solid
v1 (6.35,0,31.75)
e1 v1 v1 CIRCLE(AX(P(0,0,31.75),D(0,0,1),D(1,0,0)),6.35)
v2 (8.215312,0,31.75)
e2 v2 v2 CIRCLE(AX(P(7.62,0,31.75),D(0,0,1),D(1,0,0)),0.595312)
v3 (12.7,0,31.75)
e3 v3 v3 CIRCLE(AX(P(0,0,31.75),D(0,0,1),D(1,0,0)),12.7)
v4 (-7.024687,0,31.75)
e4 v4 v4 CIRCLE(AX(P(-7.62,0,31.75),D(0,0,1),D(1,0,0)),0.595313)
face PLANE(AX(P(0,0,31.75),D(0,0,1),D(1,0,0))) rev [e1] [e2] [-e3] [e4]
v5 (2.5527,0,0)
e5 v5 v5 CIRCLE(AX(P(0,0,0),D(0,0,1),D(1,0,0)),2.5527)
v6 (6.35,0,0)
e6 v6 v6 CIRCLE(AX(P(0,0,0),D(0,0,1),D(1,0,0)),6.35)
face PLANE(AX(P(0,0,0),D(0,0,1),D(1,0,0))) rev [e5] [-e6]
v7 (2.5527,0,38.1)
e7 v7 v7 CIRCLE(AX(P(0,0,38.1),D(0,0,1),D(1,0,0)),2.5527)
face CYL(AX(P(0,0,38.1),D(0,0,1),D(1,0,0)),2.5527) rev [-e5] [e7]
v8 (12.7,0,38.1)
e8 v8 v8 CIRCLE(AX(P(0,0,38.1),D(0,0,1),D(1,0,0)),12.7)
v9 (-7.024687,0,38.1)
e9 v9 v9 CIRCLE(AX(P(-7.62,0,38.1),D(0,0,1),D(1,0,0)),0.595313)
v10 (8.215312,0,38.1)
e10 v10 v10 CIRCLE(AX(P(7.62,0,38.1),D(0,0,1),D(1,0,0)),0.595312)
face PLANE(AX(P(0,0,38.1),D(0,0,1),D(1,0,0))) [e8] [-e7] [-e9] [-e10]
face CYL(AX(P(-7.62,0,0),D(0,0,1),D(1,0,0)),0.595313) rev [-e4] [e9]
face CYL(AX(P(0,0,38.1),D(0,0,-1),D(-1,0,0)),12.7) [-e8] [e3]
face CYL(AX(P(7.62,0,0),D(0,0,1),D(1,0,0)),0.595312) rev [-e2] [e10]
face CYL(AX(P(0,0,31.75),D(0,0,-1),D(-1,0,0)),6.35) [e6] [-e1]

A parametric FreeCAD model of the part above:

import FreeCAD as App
import Part
import Sketcher
from FreeCAD import Vector
Q = App.Units.Quantity

doc = App.newDocument("Part")
body = doc.addObject("PartDesign::Body", "Body")

sketch1 = body.newObject("Sketcher::SketchObject", "Sketch")
sketch1.AttachmentSupport = (doc.getObject("XY_Plane"), [""])
sketch1.MapMode = "FlatFace"
sketch1.addGeometry(Part.Circle(Vector(0, 0, 0), Vector(0, 0, 1), 6.35), False)
sketch1.addGeometry(Part.Circle(Vector(0, 0, 0), Vector(0, 0, 1), 2.5527), False)
sketch1.addConstraint(Sketcher.Constraint("Coincident", 0, 3, -1, 1))
sketch1.addConstraint(Sketcher.Constraint("Coincident", 1, 3, -1, 1))
sketch1.addConstraint(Sketcher.Constraint("Diameter", 0, Q("0.5 in")))
sketch1.addConstraint(Sketcher.Constraint("Diameter", 1, Q("0.201 in")))
pad1 = body.newObject("PartDesign::Pad", "Pad")
pad1.Profile = sketch1
pad1.Length = Q("1.25 in")

sketch2 = body.newObject("Sketcher::SketchObject", "Sketch001")
sketch2.AttachmentSupport = (doc.getObject("XY_Plane"), [""])
sketch2.MapMode = "FlatFace"
sketch2.AttachmentOffset = App.Placement(Vector(0, 0, 1.25 * 25.4), App.Rotation())
sketch2.addGeometry(Part.Circle(Vector(0, 0, 0), Vector(0, 0, 1), 12.7), False)
sketch2.addGeometry(Part.Circle(Vector(0, 0, 0), Vector(0, 0, 1), 2.5527), False)
sketch2.addConstraint(Sketcher.Constraint("Coincident", 0, 3, -1, 1))
sketch2.addConstraint(Sketcher.Constraint("Coincident", 1, 3, -1, 1))
sketch2.addConstraint(Sketcher.Constraint("Diameter", 0, Q("1 in")))
sketch2.addConstraint(Sketcher.Constraint("Diameter", 1, Q("0.201 in")))
pad2 = body.newObject("PartDesign::Pad", "Pad001")
pad2.Profile = sketch2
pad2.Length = Q("0.25 in")

sketch3 = body.newObject("Sketcher::SketchObject", "Sketch002")
sketch3.AttachmentSupport = (doc.getObject("XY_Plane"), [""])
sketch3.MapMode = "FlatFace"
sketch3.AttachmentOffset = App.Placement(Vector(0, 0, 1.5 * 25.4), App.Rotation())
sketch3.addGeometry(Part.Circle(Vector(-7.62, 0, 0), Vector(0, 0, 1), 0.595313), False)
sketch3.addGeometry(Part.Circle(Vector(7.62, 0, 0), Vector(0, 0, 1), 0.595313), False)
sketch3.addConstraint(Sketcher.Constraint("Equal", 0, 1))
sketch3.addConstraint(Sketcher.Constraint("Symmetric", 0, 3, 1, 3, -1, 1))
sketch3.addConstraint(Sketcher.Constraint("PointOnObject", 0, 3, -1))
sketch3.addConstraint(Sketcher.Constraint("Diameter", 0, Q("0.046875 in")))
sketch3.addConstraint(Sketcher.Constraint("DistanceX", 0, 3, -1, 1, Q("0.3 in")))
pocket1 = body.newObject("PartDesign::Pocket", "Pocket")
pocket1.Profile = sketch3
pocket1.Type = "ThroughAll"

sketch4 = body.newObject("Sketcher::SketchObject", "Sketch003")
sketch4.AttachmentSupport = (doc.getObject("XY_Plane"), [""])
sketch4.MapMode = "FlatFace"
sketch4.addGeometry(Part.Circle(Vector(0, 0, 0), Vector(0, 0, 1), 2.5527), False)
sketch4.addConstraint(Sketcher.Constraint("Coincident", 0, 3, -1, 1))
sketch4.addConstraint(Sketcher.Constraint("Diameter", 0, Q("0.201 in")))
pad3 = body.newObject("PartDesign::Pad", "Pad002")
pad3.Profile = sketch4
pad3.Length = Q("1.5 in")

sketch5 = body.newObject("Sketcher::SketchObject", "Sketch004")
sketch5.AttachmentSupport = (doc.getObject("XY_Plane"), [""])
sketch5.MapMode = "FlatFace"
sketch5.AttachmentOffset = App.Placement(Vector(0, 0, 1.5 * 25.4), App.Rotation())
sketch5.addGeometry(Part.Circle(Vector(0, 0, 0), Vector(0, 0, 1), 2.5527), False)
sketch5.addConstraint(Sketcher.Constraint("Coincident", 0, 3, -1, 1))
sketch5.addConstraint(Sketcher.Constraint("Diameter", 0, Q("0.201 in")))
doc.recompute()
hole = body.newObject("PartDesign::Hole", "Hole")
hole.Profile = sketch5
hole.ThreadType = "None"
hole.Diameter = Q("0.201 in")
hole.DepthType = "ThroughAll"

doc.recompute()
